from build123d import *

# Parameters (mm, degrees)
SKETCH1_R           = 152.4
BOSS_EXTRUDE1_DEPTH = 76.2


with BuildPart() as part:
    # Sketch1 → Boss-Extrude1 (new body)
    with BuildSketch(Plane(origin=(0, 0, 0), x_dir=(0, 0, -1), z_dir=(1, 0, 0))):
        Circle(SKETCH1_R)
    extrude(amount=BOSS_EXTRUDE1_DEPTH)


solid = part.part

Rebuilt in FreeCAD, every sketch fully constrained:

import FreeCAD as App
import Part
import Sketcher

V = App.Vector
Q = App.Units.Quantity

doc = App.newDocument("Part")
body = doc.addObject("PartDesign::Body", "Body")

# Sketch on YZ plane
sketch1 = doc.addObject("Sketcher::SketchObject", "Sketch")
body.addObject(sketch1)
sketch1.AttachmentSupport = (doc.YZ_Plane, [""])
sketch1.MapMode = "FlatFace"
sketch1.addGeometry(Part.Circle(V(0, 0, 0), V(0, 0, 1), 152.4), False)
sketch1.addConstraint(Sketcher.Constraint("Coincident", 0, 3, -1, 1))
sketch1.addConstraint(Sketcher.Constraint("Diameter", 0, Q("12 in")))
pad1 = doc.addObject("PartDesign::Pad", "Pad")
body.addObject(pad1)
pad1.Profile = sketch1
pad1.Length = Q("3 in")

doc.recompute()
